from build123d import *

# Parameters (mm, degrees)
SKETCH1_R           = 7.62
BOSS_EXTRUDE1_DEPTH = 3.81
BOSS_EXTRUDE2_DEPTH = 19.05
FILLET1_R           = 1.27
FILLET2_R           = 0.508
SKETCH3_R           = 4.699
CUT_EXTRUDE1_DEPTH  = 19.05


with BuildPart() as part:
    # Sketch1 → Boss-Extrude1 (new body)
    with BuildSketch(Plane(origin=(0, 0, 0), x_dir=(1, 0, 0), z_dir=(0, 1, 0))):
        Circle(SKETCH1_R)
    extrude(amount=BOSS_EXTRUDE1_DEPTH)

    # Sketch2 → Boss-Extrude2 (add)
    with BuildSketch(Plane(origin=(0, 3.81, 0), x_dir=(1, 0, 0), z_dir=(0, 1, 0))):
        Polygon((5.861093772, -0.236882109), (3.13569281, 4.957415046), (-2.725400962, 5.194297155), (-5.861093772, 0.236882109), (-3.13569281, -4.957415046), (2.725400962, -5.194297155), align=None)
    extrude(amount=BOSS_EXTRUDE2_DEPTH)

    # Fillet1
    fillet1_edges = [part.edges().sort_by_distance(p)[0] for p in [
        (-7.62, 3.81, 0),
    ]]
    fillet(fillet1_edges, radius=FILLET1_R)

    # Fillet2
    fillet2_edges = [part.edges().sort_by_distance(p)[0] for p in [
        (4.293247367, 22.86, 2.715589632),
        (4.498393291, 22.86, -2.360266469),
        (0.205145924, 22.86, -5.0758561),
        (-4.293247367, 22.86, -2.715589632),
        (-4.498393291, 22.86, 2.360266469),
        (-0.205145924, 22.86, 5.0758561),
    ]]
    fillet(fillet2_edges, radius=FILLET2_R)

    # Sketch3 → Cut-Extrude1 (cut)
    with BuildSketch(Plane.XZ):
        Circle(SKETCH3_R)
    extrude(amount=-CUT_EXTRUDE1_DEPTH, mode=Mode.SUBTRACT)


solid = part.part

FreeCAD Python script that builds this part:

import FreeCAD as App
import Part
import Sketcher
from FreeCAD import Vector
Q = App.Units.Quantity


def edges_at(feature, points):
    """Names of the edges that pass closest to the given points."""
    edges = feature.Shape.Edges
    near = lambda p: min(range(len(edges)), key=lambda i: edges[i].distToShape(Part.Vertex(*p))[0])
    return sorted({f"Edge{near(p) + 1}" for p in points})


def add_polygon(sketch, points):
    """Adds a closed chain of lines whose ends are joined by coincident constraints."""
    first, n = sketch.GeometryCount, len(points)
    for a, b in zip(points, points[1:] + points[:1]):
        sketch.addGeometry(Part.LineSegment(App.Vector(*a, 0), App.Vector(*b, 0)), False)
    for i in range(n):
        sketch.addConstraint(Sketcher.Constraint("Coincident", first + i, 2, first + (i + 1) % n, 1))

doc = App.newDocument("Part")
params = doc.addObject("Spreadsheet::Sheet", "Params")
for row, (alias, value) in enumerate([
    ("sketch1_diameter", "0.6 in"),
    ("pad1_length", "0.15 in"),
    ("pad2_length", "0.75 in"),
    ("fillet_radius", "0.05 in"),
    ("fillet2_radius", "0.02 in"),
    ("sketch3_diameter", "0.37 in"),
    ("pocket1_length", "0.75 in"),
], start=1):
    params.set(f"A{row}", alias)
    params.set(f"B{row}", "=" + value)
    params.setAlias(f"B{row}", alias)

body = doc.addObject("PartDesign::Body", "Body")

# Sketch on XZ plane
sketch1 = body.newObject("Sketcher::SketchObject", "Sketch")
sketch1.AttachmentSupport = (doc.getObject("XZ_Plane"), [""])
sketch1.MapMode = "FlatFace"
sketch1.addGeometry(Part.Circle(Vector(0, 0, 0), Vector(0, 0, 1), 8), False)
sketch1.addConstraint([
    Sketcher.Constraint("Coincident", 0, 3, -1, 1),
    Sketcher.Constraint("Diameter", 0, Q("0.6 in")),
])
sketch1.setExpression("Constraints[1]", "Params.sketch1_diameter")
pad1 = body.newObject("PartDesign::Pad", "Pad")
pad1.Profile = sketch1
pad1.setExpression("Length", "Params.pad1_length")
pad1.Reversed = True

# Sketch on XZ plane
sketch2 = body.newObject("Sketcher::SketchObject", "Sketch001")
sketch2.AttachmentSupport = (doc.getObject("XZ_Plane"), [""])
sketch2.MapMode = "FlatFace"
sketch2.AttachmentOffset = App.Placement(Vector(0, 0, -0.15 * 25.4), App.Rotation())
add_polygon(sketch2, [(6, 0), (3, -5), (-3, -5), (-6, 0), (-3, 5), (3, 5)])  # lines 0-5
sketch2.addConstraint([
    Sketcher.Constraint("Symmetric", 0, 2, 3, 2, -1, 1),
    Sketcher.Constraint("Symmetric", 1, 2, 4, 2, -1, 1),
    Sketcher.Constraint("Symmetric", 2, 2, 5, 2, -1, 1),
    Sketcher.Constraint("Equal", 0, 1),
    Sketcher.Constraint("Equal", 1, 2),
    Sketcher.Constraint("DistanceY", 1, 2, -1, 1, Q("0.2044999 in")),
    Sketcher.Constraint("DistanceY", 2, 2, 3, 2, Q("0.2044999 in")),
    Sketcher.Constraint("DistanceX", 1, 2, -1, 1, 2.725401),
    Sketcher.Constraint("DistanceX", 2, 2, 3, 2, 2.725401),
])
pad2 = body.newObject("PartDesign::Pad", "Pad001")
pad2.Profile = sketch2
pad2.setExpression("Length", "Params.pad2_length")
pad2.Reversed = True
doc.recompute()

fillet = body.newObject("PartDesign::Fillet", "Fillet")
fillet.Base = (pad2, edges_at(pad2, [(-7.62, 3.81, 0)]))
fillet.setExpression("Radius", "Params.fillet_radius")
doc.recompute()

fillet2 = body.newObject("PartDesign::Fillet", "Fillet001")
fillet2.Base = (fillet, edges_at(fillet, [
    (4.293, 22.86, 2.716),
    (4.498, 22.86, -2.36),
    (0.205, 22.86, -5.076),
    (-4.293, 22.86, -2.716),
    (-4.498, 22.86, 2.36),
    (-0.205, 22.86, 5.076),
]))
fillet2.setExpression("Radius", "Params.fillet2_radius")

# Sketch on XZ plane
sketch3 = body.newObject("Sketcher::SketchObject", "Sketch002")
sketch3.AttachmentSupport = (doc.getObject("XZ_Plane"), [""])
sketch3.MapMode = "FlatFace"
sketch3.addGeometry(Part.Circle(Vector(0, 0, 0), Vector(0, 0, 1), 4.7), False)
sketch3.addConstraint([
    Sketcher.Constraint("Coincident", 0, 3, -1, 1),
    Sketcher.Constraint("Diameter", 0, Q("0.37 in")),
])
sketch3.setExpression("Constraints[1]", "Params.sketch3_diameter")
pocket1 = body.newObject("PartDesign::Pocket", "Pocket")
pocket1.Profile = sketch3
pocket1.setExpression("Length", "Params.pocket1_length")

doc.recompute()
